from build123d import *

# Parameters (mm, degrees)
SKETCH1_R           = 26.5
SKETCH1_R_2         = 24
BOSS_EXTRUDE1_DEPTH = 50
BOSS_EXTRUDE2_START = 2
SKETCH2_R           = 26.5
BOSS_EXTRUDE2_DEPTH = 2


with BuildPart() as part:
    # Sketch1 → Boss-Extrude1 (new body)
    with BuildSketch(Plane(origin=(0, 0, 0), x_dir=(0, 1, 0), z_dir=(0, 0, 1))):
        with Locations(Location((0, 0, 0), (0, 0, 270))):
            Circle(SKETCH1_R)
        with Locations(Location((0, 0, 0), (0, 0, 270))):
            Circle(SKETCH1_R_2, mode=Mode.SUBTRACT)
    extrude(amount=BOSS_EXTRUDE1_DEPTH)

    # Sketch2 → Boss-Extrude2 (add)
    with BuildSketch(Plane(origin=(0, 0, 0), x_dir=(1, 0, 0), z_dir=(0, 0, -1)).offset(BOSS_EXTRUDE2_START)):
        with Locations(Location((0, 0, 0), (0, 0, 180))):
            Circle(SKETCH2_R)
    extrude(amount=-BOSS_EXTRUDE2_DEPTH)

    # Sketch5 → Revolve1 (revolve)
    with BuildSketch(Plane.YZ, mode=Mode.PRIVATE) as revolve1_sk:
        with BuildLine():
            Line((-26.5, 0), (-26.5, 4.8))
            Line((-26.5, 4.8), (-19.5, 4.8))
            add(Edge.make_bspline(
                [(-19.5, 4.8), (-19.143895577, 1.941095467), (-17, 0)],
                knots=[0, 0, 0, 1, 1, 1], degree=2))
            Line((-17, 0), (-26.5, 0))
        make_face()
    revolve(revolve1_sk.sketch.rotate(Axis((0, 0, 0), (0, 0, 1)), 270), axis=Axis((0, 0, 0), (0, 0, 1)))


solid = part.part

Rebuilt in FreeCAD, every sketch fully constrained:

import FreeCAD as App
import Part
import Sketcher
Q = App.Units.Quantity

doc = App.newDocument("Part")
params = doc.addObject("Spreadsheet::Sheet", "Params")
for row, (alias, value) in enumerate([
    ("sketch1_diameter", "53 mm"),
    ("sketch1_diameter2", "48 mm"),
    ("pad1_length", "50 mm"),
    ("sketch2_diameter", "53 mm"),
    ("pad2_length", "2 mm"),
    ("sketch3_width", "7 mm"),
    ("revolution_angle", "360 deg"),
], start=1):
    params.set(f"A{row}", alias)
    params.set(f"B{row}", "=" + value)
    params.setAlias(f"B{row}", alias)

body = doc.addObject("PartDesign::Body", "Body")

# Sketch on XY plane
sketch1 = body.newObject("Sketcher::SketchObject", "Sketch")
sketch1.AttachmentSupport = (doc.getObject("XY_Plane"), [""])
sketch1.MapMode = "FlatFace"
sketch1.addGeometry([
    Part.Circle(App.Vector(0, 0, 0), App.Vector(0, 0, 1), 26),
    Part.Circle(App.Vector(0, 0, 0), App.Vector(0, 0, 1), 24),
], False)
sketch1.addConstraint([
    Sketcher.Constraint("Coincident", 0, 3, -1, 1),
    Sketcher.Constraint("Coincident", 1, 3, -1, 1),
    Sketcher.Constraint("Diameter", 0, Q("53 mm")),
    Sketcher.Constraint("Diameter", 1, Q("48 mm")),
])
sketch1.setExpression("Constraints[2]", "Params.sketch1_diameter")
sketch1.setExpression("Constraints[3]", "Params.sketch1_diameter2")
pad1 = body.newObject("PartDesign::Pad", "Pad")
pad1.Profile = sketch1
pad1.setExpression("Length", "Params.pad1_length")

# Sketch on XY plane
sketch2 = body.newObject("Sketcher::SketchObject", "Sketch001")
sketch2.AttachmentSupport = (doc.getObject("XY_Plane"), [""])
sketch2.MapMode = "FlatFace"
sketch2.AttachmentOffset = App.Placement(App.Vector(0, 0, -2), App.Rotation())
sketch2.addGeometry(Part.Circle(App.Vector(0, 0, 0), App.Vector(0, 0, 1), 26), False)
sketch2.addConstraint([
    Sketcher.Constraint("Coincident", 0, 3, -1, 1),
    Sketcher.Constraint("Diameter", 0, Q("53 mm")),
])
sketch2.setExpression("Constraints[1]", "Params.sketch2_diameter")
pad2 = body.newObject("PartDesign::Pad", "Pad001")
pad2.Profile = sketch2
pad2.setExpression("Length", "Params.pad2_length")

# Sketch on YZ plane
sketch3 = body.newObject("Sketcher::SketchObject", "Sketch002")
sketch3.AttachmentSupport = (doc.getObject("YZ_Plane"), [""])
sketch3.MapMode = "FlatFace"
sketch3.addGeometry([
    Part.LineSegment(App.Vector(-26.5, 4.8, 0), App.Vector(-26.5, 0, 0)),
    Part.LineSegment(App.Vector(-26.5, 0, 0), App.Vector(-17, 0, 0)),
    Part.BSplineCurve([App.Vector(-19.5, 4.8, 0), App.Vector(-19.143896, 1.941095, 0), App.Vector(-17, 0, 0)], [3, 3], [0, 1], False, 2, [1, 1, 1], False),
    Part.LineSegment(App.Vector(-19.5, 4.8, 0), App.Vector(-26.5, 4.8, 0)),
], False)
sketch3.addConstraint([
    Sketcher.Constraint("Block", 2),
    Sketcher.Constraint("Coincident", 0, 2, 1, 1),
    Sketcher.Constraint("Coincident", 1, 2, 2, 2),
    Sketcher.Constraint("Coincident", 2, 1, 3, 1),
    Sketcher.Constraint("Coincident", 3, 2, 0, 1),
    Sketcher.Constraint("Vertical", 0),
    Sketcher.Constraint("Horizontal", 1),
    Sketcher.Constraint("Horizontal", 3),
    Sketcher.Constraint("DistanceX", 3, 2, 3, 1, Q("7 mm")),
])
sketch3.setExpression("Constraints[8]", "Params.sketch3_width")
revolution = body.newObject("PartDesign::Revolution", "Revolution")
revolution.Profile = sketch3
revolution.ReferenceAxis = (sketch3, ["V_Axis"])
revolution.setExpression("Angle", "Params.revolution_angle")

doc.recompute()
